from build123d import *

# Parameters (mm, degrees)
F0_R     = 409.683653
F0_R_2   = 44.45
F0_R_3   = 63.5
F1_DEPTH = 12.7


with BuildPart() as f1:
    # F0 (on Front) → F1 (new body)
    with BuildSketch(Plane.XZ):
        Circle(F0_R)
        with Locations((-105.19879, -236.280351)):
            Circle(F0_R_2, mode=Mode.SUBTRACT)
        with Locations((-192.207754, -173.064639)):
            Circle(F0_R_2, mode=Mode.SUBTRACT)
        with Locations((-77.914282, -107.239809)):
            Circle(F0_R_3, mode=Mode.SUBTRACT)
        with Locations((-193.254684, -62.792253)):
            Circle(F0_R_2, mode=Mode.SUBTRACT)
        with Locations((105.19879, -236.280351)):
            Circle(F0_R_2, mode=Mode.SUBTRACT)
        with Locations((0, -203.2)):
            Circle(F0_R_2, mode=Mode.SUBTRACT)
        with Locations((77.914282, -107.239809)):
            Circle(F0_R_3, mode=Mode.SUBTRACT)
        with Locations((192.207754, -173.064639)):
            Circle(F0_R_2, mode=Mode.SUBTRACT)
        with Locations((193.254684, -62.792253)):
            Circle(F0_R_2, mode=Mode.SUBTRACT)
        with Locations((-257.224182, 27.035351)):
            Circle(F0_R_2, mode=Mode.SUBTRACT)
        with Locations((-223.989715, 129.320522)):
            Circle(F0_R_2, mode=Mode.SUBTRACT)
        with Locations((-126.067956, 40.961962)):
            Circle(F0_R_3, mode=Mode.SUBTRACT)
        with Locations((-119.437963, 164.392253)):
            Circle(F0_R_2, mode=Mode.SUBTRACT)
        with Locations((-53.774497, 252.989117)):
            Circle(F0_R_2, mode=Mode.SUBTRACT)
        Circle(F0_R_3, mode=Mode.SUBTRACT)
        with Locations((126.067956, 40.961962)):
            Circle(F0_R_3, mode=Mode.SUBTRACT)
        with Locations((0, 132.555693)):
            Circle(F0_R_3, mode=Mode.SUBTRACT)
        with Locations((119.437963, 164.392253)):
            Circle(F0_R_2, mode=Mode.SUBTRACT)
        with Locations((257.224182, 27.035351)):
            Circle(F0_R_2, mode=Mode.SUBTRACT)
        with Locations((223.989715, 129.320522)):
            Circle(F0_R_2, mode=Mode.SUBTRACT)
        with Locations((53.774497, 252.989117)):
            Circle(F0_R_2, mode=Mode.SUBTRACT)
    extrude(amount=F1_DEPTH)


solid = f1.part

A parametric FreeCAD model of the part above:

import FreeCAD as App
import Part
import Sketcher

V = App.Vector
Q = App.Units.Quantity

doc = App.newDocument("Part")
body = doc.addObject("PartDesign::Body", "Body")

# Sketch on XZ plane
sketch1 = doc.addObject("Sketcher::SketchObject", "Sketch")
body.addObject(sketch1)
sketch1.AttachmentSupport = (doc.XZ_Plane, [""])
sketch1.MapMode = "FlatFace"
sketch1.addGeometry([
    Part.Circle(V(0, 0, 0), V(0, 0, 1), 410),  # 0
    Part.Circle(V(-192, -173, 0), V(0, 0, 1), 44),  # 1
    Part.Circle(V(-105, -236, 0), V(0, 0, 1), 44),  # 2
    Part.Circle(V(-193, -63, 0), V(0, 0, 1), 44),  # 3
    Part.Circle(V(-78, -107, 0), V(0, 0, 1), 64),  # 4
    Part.Circle(V(105, -236, 0), V(0, 0, 1), 44),  # 5
    Part.Circle(V(0, -203, 0), V(0, 0, 1), 44),  # 6
    Part.Circle(V(192, -173, 0), V(0, 0, 1), 44),  # 7
    Part.Circle(V(78, -107, 0), V(0, 0, 1), 64),  # 8
    Part.Circle(V(0, 0, 0), V(0, 0, 1), 64),  # 9
    Part.Circle(V(193, -63, 0), V(0, 0, 1), 44),  # 10
    Part.Circle(V(-257, 27, 0), V(0, 0, 1), 44),  # 11
    Part.Circle(V(-224, 129, 0), V(0, 0, 1), 44),  # 12
    Part.Circle(V(-126, 41, 0), V(0, 0, 1), 64),  # 13
    Part.Circle(V(-119, 164, 0), V(0, 0, 1), 44),  # 14
    Part.Circle(V(-54, 253, 0), V(0, 0, 1), 44),  # 15
    Part.Circle(V(126, 41, 0), V(0, 0, 1), 64),  # 16
    Part.Circle(V(0, 133, 0), V(0, 0, 1), 64),  # 17
    Part.Circle(V(257, 27, 0), V(0, 0, 1), 44),  # 18
    Part.Circle(V(224, 129, 0), V(0, 0, 1), 44),  # 19
    Part.Circle(V(119, 164, 0), V(0, 0, 1), 44),  # 20
    Part.Circle(V(54, 253, 0), V(0, 0, 1), 44),  # 21
], False)
sketch1.addConstraint([
    Sketcher.Constraint("Coincident", 0, 3, -1, 1),
    Sketcher.Constraint("Coincident", 9, 3, -1, 1),
    Sketcher.Constraint("Equal", 1, 2),
    Sketcher.Constraint("Equal", 2, 3),
    Sketcher.Constraint("Equal", 3, 5),
    Sketcher.Constraint("Equal", 5, 6),
    Sketcher.Constraint("Equal", 6, 7),
    Sketcher.Constraint("Equal", 4, 8),
    Sketcher.Constraint("Equal", 8, 9),
    Sketcher.Constraint("Equal", 7, 10),
    Sketcher.Constraint("Equal", 10, 11),
    Sketcher.Constraint("Equal", 11, 12),
    Sketcher.Constraint("Equal", 9, 13),
    Sketcher.Constraint("Equal", 12, 14),
    Sketcher.Constraint("Equal", 14, 15),
    Sketcher.Constraint("Equal", 13, 16),
    Sketcher.Constraint("Equal", 16, 17),
    Sketcher.Constraint("Equal", 15, 18),
    Sketcher.Constraint("Equal", 18, 19),
    Sketcher.Constraint("Equal", 19, 20),
    Sketcher.Constraint("Equal", 20, 21),
    Sketcher.Constraint("Symmetric", 2, 3, 5, 3, -2),
    Sketcher.Constraint("Symmetric", 1, 3, 7, 3, -2),
    Sketcher.Constraint("Symmetric", 4, 3, 8, 3, -2),
    Sketcher.Constraint("Symmetric", 3, 3, 10, 3, -2),
    Sketcher.Constraint("Symmetric", 13, 3, 16, 3, -2),
    Sketcher.Constraint("Symmetric", 11, 3, 18, 3, -2),
    Sketcher.Constraint("Symmetric", 12, 3, 19, 3, -2),
    Sketcher.Constraint("Symmetric", 14, 3, 20, 3, -2),
    Sketcher.Constraint("Symmetric", 15, 3, 21, 3, -2),
    Sketcher.Constraint("PointOnObject", 6, 3, -2),
    Sketcher.Constraint("PointOnObject", 17, 3, -2),
    Sketcher.Constraint("Diameter", 4, Q("5 in")),
    Sketcher.Constraint("Diameter", 1, Q("3.5 in")),
    Sketcher.Constraint("DistanceY", 6, 3, -1, 1, Q("8 in")),
    Sketcher.Constraint("Diameter", 0, 819.367306),
    Sketcher.Constraint("DistanceX", 3, 3, 4, 3, 115.340402),
    Sketcher.Constraint("DistanceX", 11, 3, 4, 3, 179.3099),
    Sketcher.Constraint("DistanceX", 16, 3, 7, 3, 66.139798),
    Sketcher.Constraint("DistanceY", 7, 3, 16, 3, 214.026601),
    Sketcher.Constraint("DistanceY", 1, 3, -1, 1, 173.064639),
    Sketcher.Constraint("DistanceX", 2, 3, -1, 1, 105.19879),
    Sketcher.Constraint("DistanceY", 2, 3, -1, 1, 236.280351),
    Sketcher.Constraint("DistanceX", 4, 3, -1, 1, 77.914282),
    Sketcher.Constraint("DistanceY", 4, 3, -1, 1, 107.239809),
    Sketcher.Constraint("DistanceY", -1, 1, 11, 3, 27.035351),
    Sketcher.Constraint("DistanceX", 3, 3, 1, 3, 1.04693),
    Sketcher.Constraint("DistanceY", 11, 3, 12, 3, 102.285171),
    Sketcher.Constraint("DistanceX", 12, 3, 3, 3, 30.735031),
    Sketcher.Constraint("DistanceX", 12, 3, 14, 3, 104.551752),
    Sketcher.Constraint("DistanceY", 12, 3, 14, 3, 35.071731),
    Sketcher.Constraint("DistanceX", 12, 3, 15, 3, 170.215218),
    Sketcher.Constraint("DistanceY", 17, 3, 14, 3, 31.83656),
    Sketcher.Constraint("DistanceY", 3, 3, -1, 1, 62.792253),
    Sketcher.Constraint("DistanceY", -1, 1, 15, 3, 252.989117),
])
pad1 = doc.addObject("PartDesign::Pad", "Pad")
body.addObject(pad1)
pad1.Profile = sketch1
pad1.Length = Q("0.5 in")

doc.recompute()
